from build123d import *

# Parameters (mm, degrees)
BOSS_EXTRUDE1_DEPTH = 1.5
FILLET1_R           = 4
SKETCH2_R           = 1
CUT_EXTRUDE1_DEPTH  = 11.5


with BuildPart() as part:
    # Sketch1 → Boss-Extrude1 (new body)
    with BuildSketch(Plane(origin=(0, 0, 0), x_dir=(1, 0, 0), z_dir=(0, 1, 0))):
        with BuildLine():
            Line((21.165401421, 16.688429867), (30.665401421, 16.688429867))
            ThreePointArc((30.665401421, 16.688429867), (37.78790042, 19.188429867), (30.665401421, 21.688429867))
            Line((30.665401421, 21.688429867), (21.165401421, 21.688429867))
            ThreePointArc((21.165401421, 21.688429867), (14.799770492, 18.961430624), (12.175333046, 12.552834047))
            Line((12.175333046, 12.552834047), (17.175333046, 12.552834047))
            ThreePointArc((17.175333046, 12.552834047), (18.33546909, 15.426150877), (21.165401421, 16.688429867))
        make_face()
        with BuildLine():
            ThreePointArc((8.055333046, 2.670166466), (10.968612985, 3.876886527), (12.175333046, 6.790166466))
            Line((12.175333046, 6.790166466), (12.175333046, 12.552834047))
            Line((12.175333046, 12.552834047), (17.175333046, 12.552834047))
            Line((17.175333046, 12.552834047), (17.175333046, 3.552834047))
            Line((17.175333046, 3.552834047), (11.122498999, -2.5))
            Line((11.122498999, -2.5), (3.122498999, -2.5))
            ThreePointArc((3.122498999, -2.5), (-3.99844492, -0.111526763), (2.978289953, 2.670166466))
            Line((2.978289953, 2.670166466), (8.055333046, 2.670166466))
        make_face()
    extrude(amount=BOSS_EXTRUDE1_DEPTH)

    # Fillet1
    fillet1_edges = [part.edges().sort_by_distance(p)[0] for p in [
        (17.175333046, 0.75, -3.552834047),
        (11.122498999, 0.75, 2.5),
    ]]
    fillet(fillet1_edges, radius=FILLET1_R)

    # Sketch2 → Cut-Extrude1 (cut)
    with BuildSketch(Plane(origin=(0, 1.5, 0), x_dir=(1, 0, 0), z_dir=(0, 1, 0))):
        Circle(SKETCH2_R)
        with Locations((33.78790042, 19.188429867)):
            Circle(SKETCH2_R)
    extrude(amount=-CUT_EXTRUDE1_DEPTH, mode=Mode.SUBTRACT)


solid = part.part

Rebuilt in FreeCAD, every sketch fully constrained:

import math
import FreeCAD as App
import Part
import Sketcher

V = App.Vector
Q = App.Units.Quantity


def edges_at(feature, points):
    """Names of the edges that pass closest to the given points."""
    edges = feature.Shape.Edges
    near = lambda p: min(range(len(edges)), key=lambda i: edges[i].distToShape(Part.Vertex(*p))[0])
    return sorted({f"Edge{near(p) + 1}" for p in points})

doc = App.newDocument("Part")
body = doc.addObject("PartDesign::Body", "Body")

# Sketch on XZ plane
sketch1 = body.newObject("Sketcher::SketchObject", "Sketch")
sketch1.AttachmentSupport = (doc.getObject("XZ_Plane"), [""])
sketch1.MapMode = "FlatFace"
sketch1.addGeometry(Part.LineSegment(V(21.2, -16.7, 0), V(30.7, -16.7, 0)), False)
sketch1.addGeometry(Part.ArcOfCircle(Part.Circle(V(33.8, -19.2, 0), V(0, 0, 1), 4), math.radians(-141), math.radians(141)), False)
sketch1.addGeometry(Part.LineSegment(V(30.7, -21.7, 0), V(21.2, -21.7, 0)), False)
sketch1.addGeometry(Part.ArcOfCircle(Part.Circle(V(21.3, -12.6, 0), V(0, 0, 1), 9.1), math.radians(-180), math.radians(-91)), False)
sketch1.addGeometry(Part.LineSegment(V(12.2, -12.6, 0), V(12.2, -6.8, 0)), False)
sketch1.addGeometry(Part.ArcOfCircle(Part.Circle(V(8.1, -6.8, 0), V(0, 0, 1), 4.1), math.radians(0), math.radians(90)), False)
sketch1.addGeometry(Part.LineSegment(V(8.1, -2.7, 0), V(3, -2.7, 0)), False)
sketch1.addGeometry(Part.ArcOfCircle(Part.Circle(V(0, 0, 0), V(0, 0, 1), 4), math.radians(39), math.radians(318)), False)
sketch1.addGeometry(Part.LineSegment(V(3.1, 2.5, 0), V(11.1, 2.5, 0)), False)
sketch1.addGeometry(Part.LineSegment(V(11.1, 2.5, 0), V(17.2, -3.6, 0)), False)
sketch1.addGeometry(Part.LineSegment(V(17.2, -3.6, 0), V(17.2, -12.6, 0)), False)
sketch1.addGeometry(Part.ArcOfCircle(Part.Circle(V(21.3, -12.6, 0), V(0, 0, 1), 4.1), math.radians(180), math.radians(268)), False)
sketch1.addConstraint(Sketcher.Constraint("Coincident", 0, 2, 1, 2))
sketch1.addConstraint(Sketcher.Constraint("Coincident", 1, 1, 2, 1))
sketch1.addConstraint(Sketcher.Constraint("Coincident", 2, 2, 3, 2))
sketch1.addConstraint(Sketcher.Constraint("Tangent", 3, 1, 4, 1))
sketch1.addConstraint(Sketcher.Constraint("Tangent", 4, 2, 5, 1))
sketch1.addConstraint(Sketcher.Constraint("Tangent", 5, 2, 6, 1))
sketch1.addConstraint(Sketcher.Constraint("Coincident", 6, 2, 7, 2))
sketch1.addConstraint(Sketcher.Constraint("Coincident", 7, 1, 8, 1))
sketch1.addConstraint(Sketcher.Constraint("Coincident", 8, 2, 9, 1))
sketch1.addConstraint(Sketcher.Constraint("Coincident", 9, 2, 10, 1))
sketch1.addConstraint(Sketcher.Constraint("Tangent", 10, 2, 11, 1))
sketch1.addConstraint(Sketcher.Constraint("Coincident", 11, 2, 0, 1))
sketch1.addConstraint(Sketcher.Constraint("Horizontal", 0))
sketch1.addConstraint(Sketcher.Constraint("Horizontal", 2))
sketch1.addConstraint(Sketcher.Constraint("Vertical", 4))
sketch1.addConstraint(Sketcher.Constraint("Horizontal", 6))
sketch1.addConstraint(Sketcher.Constraint("Horizontal", 8))
sketch1.addConstraint(Sketcher.Constraint("Vertical", 10))
sketch1.addConstraint(Sketcher.Constraint("Coincident", 7, 3, -1, 1))
sketch1.addConstraint(Sketcher.Constraint("Equal", 1, 7))
sketch1.addConstraint(Sketcher.Constraint("Horizontal", 3, 3, 11, 3))
sketch1.addConstraint(Sketcher.Constraint("Vertical", 0, 2, 1, 1))
sketch1.addConstraint(Sketcher.Constraint("Vertical", 2, 2, 11, 2))
sketch1.addConstraint(Sketcher.Constraint("Radius", 1, 4.0))
sketch1.addConstraint(Sketcher.Constraint("DistanceX", 8, 1, 8, 2, 8.0))
sketch1.addConstraint(Sketcher.Constraint("DistanceY", 10, 2, 10, 1, 9.0))
sketch1.addConstraint(Sketcher.Constraint("Angle", 9, Q("-45 deg")))
sketch1.addConstraint(Sketcher.Constraint("Radius", 5, 4.12))
sketch1.addConstraint(Sketcher.Constraint("DistanceX", 0, 1, 0, 2, 9.5))
sketch1.addConstraint(Sketcher.Constraint("DistanceY", 1, 1, 0, 2, 5.0))
sketch1.addConstraint(Sketcher.Constraint("DistanceX", 4, 2, 9, 2, 5.0))
sketch1.addConstraint(Sketcher.Constraint("DistanceY", -1, 1, 7, 1, 2.5))
sketch1.addConstraint(Sketcher.Constraint("Distance", 9, 8.56))
sketch1.addConstraint(Sketcher.Constraint("Radius", 11, 4.13825))
sketch1.addConstraint(Sketcher.Constraint("Radius", 3, 9.136774))
sketch1.addConstraint(Sketcher.Constraint("DistanceX", 6, 2, 6, 1, 5.077043))
pad1 = body.newObject("PartDesign::Pad", "Pad")
pad1.Profile = sketch1
pad1.Length = 1.5
pad1.Reversed = True
doc.recompute()

fillet = body.newObject("PartDesign::Fillet", "Fillet")
fillet.Base = (pad1, edges_at(pad1, [(17.175, 0.75, -3.553), (11.122, 0.75, 2.5)]))
fillet.Radius = 4

# Sketch on XZ plane
sketch2 = body.newObject("Sketcher::SketchObject", "Sketch001")
sketch2.AttachmentSupport = (doc.getObject("XZ_Plane"), [""])
sketch2.MapMode = "FlatFace"
sketch2.AttachmentOffset = App.Placement(V(0, 0, -1.5), App.Rotation())
sketch2.addGeometry(Part.Circle(V(0, 0, 0), V(0, 0, 1), 1), False)
sketch2.addGeometry(Part.Circle(V(33.8, -19.2, 0), V(0, 0, 1), 1), False)
sketch2.addConstraint(Sketcher.Constraint("Coincident", 0, 3, -1, 1))
sketch2.addConstraint(Sketcher.Constraint("Equal", 0, 1))
sketch2.addConstraint(Sketcher.Constraint("Diameter", 0, 2.0))
sketch2.addConstraint(Sketcher.Constraint("DistanceX", -1, 1, 1, 3, 33.7879))
sketch2.addConstraint(Sketcher.Constraint("DistanceY", 1, 3, -1, 1, 19.18843))
pocket1 = body.newObject("PartDesign::Pocket", "Pocket")
pocket1.Profile = sketch2
pocket1.Length = 11.5
pocket1.Reversed = True

doc.recompute()
